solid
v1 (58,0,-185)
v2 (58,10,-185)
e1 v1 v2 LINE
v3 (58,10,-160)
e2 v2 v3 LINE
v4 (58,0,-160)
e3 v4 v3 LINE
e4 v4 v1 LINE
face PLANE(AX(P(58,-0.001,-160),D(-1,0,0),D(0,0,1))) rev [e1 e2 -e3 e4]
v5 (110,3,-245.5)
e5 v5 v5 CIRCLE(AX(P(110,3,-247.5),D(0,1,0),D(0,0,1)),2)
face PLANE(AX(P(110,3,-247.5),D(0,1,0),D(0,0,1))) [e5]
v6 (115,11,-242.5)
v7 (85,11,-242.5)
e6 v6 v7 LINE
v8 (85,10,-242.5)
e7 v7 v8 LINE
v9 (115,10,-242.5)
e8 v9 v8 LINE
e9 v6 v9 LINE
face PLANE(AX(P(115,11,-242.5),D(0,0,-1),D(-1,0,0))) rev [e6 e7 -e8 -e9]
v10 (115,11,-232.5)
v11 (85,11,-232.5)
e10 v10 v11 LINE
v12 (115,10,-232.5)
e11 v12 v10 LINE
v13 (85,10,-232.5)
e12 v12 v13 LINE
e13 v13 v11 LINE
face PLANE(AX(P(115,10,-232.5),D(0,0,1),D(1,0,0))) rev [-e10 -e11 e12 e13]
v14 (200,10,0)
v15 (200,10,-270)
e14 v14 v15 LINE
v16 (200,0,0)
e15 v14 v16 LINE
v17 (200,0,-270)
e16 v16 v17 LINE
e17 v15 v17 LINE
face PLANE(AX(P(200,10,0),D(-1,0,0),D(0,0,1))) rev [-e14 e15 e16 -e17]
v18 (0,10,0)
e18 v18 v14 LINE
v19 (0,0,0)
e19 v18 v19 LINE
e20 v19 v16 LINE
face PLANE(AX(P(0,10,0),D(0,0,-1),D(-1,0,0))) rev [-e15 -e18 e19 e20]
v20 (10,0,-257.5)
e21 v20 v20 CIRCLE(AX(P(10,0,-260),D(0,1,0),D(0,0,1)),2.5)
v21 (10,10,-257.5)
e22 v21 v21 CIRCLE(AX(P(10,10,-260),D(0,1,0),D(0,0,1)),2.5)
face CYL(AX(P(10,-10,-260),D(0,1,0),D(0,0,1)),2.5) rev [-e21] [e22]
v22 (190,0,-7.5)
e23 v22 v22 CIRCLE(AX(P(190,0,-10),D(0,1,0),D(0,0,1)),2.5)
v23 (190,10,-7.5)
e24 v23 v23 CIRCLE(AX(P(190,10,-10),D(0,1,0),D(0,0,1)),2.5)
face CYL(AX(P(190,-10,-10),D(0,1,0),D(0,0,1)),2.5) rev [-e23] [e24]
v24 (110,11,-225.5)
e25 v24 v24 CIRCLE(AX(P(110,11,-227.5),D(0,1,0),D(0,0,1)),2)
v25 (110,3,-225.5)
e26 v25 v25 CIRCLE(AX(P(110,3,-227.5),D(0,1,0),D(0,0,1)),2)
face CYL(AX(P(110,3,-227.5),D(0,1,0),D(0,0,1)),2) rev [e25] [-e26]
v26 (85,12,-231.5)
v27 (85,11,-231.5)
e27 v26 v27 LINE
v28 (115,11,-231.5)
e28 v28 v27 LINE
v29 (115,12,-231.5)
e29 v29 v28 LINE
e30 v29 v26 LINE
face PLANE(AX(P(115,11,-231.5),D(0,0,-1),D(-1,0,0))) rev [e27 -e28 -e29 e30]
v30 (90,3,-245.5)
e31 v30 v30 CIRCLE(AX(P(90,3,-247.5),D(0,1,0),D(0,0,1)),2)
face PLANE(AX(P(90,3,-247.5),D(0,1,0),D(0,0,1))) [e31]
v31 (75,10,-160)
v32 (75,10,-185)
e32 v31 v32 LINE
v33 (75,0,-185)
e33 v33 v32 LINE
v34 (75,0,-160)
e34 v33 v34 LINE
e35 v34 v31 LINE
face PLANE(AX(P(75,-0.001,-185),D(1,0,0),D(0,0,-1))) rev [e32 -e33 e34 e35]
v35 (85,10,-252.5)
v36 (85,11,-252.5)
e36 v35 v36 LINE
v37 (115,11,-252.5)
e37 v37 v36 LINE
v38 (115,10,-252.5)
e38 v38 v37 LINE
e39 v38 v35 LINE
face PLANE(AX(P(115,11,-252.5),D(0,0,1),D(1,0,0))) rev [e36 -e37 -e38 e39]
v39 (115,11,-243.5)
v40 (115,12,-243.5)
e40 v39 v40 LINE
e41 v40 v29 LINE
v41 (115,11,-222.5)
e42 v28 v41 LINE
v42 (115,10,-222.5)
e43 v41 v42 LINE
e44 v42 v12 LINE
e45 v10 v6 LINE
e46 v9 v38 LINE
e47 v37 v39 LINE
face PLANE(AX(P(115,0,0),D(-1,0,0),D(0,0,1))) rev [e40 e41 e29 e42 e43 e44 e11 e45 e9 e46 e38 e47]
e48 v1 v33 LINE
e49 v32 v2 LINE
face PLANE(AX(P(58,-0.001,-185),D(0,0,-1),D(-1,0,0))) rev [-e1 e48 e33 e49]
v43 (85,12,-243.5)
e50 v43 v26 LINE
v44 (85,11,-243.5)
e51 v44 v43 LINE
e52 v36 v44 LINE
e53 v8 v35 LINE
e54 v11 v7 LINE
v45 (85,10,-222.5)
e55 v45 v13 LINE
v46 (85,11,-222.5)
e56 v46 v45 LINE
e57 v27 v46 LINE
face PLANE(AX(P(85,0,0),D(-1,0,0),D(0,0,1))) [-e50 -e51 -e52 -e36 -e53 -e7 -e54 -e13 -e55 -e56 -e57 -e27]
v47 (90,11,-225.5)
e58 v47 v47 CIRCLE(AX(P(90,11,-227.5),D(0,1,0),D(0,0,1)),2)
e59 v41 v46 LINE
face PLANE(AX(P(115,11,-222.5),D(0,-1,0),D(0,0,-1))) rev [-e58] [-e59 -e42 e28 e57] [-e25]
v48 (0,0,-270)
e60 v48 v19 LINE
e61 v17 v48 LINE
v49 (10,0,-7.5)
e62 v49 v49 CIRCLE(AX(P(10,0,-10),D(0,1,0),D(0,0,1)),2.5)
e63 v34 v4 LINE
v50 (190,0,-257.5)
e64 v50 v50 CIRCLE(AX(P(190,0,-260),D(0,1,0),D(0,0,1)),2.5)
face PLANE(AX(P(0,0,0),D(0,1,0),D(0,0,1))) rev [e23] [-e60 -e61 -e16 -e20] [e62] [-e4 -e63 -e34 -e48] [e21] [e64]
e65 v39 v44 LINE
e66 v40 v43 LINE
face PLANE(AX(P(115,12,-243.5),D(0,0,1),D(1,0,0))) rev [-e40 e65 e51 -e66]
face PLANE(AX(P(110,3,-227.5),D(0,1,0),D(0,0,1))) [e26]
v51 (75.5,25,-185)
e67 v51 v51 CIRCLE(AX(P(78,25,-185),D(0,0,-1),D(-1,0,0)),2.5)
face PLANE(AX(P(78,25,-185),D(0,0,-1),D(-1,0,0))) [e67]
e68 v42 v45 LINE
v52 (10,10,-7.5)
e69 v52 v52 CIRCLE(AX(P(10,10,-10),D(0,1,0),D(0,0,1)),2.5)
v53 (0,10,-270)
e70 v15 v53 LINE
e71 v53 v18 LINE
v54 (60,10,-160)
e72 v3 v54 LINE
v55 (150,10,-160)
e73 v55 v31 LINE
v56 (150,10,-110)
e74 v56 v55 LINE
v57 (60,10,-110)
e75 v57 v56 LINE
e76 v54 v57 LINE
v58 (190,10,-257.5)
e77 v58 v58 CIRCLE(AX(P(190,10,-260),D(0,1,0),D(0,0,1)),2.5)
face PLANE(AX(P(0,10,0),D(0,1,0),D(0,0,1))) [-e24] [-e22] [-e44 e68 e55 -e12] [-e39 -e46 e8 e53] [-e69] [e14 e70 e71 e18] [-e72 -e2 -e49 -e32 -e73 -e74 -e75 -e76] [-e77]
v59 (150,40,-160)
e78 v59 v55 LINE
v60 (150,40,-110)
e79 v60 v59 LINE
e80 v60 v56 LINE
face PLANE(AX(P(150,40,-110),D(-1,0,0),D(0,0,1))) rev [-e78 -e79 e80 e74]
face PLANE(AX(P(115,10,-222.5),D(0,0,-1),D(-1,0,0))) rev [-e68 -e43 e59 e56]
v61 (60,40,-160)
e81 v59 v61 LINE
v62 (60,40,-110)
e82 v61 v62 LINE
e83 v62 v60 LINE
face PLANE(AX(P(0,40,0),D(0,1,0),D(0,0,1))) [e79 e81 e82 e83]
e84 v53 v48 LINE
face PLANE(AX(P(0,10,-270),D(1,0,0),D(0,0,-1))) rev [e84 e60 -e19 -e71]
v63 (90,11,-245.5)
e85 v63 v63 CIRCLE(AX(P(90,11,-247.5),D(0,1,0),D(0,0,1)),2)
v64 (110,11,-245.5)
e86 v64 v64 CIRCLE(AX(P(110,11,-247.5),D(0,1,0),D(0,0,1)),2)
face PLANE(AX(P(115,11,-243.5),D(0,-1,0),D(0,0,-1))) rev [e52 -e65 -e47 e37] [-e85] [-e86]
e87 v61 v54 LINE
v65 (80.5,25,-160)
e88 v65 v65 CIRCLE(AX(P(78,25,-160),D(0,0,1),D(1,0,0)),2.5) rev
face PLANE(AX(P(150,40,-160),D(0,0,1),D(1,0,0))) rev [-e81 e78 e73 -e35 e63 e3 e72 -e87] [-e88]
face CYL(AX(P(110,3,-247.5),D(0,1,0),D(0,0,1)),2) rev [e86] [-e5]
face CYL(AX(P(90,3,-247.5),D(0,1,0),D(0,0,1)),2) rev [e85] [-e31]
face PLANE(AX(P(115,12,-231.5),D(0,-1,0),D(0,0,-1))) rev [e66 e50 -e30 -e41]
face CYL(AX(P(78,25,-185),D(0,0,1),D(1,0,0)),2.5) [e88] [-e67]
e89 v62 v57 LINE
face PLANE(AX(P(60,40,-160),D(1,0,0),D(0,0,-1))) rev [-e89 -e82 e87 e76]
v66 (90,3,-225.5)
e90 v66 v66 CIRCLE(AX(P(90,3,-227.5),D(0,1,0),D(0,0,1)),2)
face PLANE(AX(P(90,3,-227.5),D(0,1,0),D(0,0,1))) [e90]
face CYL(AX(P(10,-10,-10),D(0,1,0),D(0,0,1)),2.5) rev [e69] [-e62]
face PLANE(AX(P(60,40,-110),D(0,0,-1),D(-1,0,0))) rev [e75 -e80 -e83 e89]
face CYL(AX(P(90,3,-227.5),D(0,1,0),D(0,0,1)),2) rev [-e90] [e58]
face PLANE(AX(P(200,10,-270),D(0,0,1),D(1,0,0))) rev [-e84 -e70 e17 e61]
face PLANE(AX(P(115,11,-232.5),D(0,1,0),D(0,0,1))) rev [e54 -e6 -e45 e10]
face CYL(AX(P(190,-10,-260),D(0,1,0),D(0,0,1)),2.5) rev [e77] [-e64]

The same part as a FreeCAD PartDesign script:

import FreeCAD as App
import Part
import Sketcher


def add_polygon(sketch, points):
    """Adds a closed chain of lines whose ends are joined by coincident constraints."""
    first, n = sketch.GeometryCount, len(points)
    for a, b in zip(points, points[1:] + points[:1]):
        sketch.addGeometry(Part.LineSegment(App.Vector(*a, 0), App.Vector(*b, 0)), False)
    for i in range(n):
        sketch.addConstraint(Sketcher.Constraint("Coincident", first + i, 2, first + (i + 1) % n, 1))

doc = App.newDocument("Part")
body = doc.addObject("PartDesign::Body", "Body")

sketch1 = body.newObject("Sketcher::SketchObject", "Sketch")
sketch1.AttachmentSupport = (doc.getObject("XZ_Plane"), [""])
sketch1.MapMode = "FlatFace"
add_polygon(sketch1, [(0, -270), (0, 0), (200, 0), (200, -270)])
sketch1.addConstraint(Sketcher.Constraint("Vertical", 0))
sketch1.addConstraint(Sketcher.Constraint("Horizontal", 1))
sketch1.addConstraint(Sketcher.Constraint("Vertical", 2))
sketch1.addConstraint(Sketcher.Constraint("Horizontal", 3))
sketch1.addConstraint(Sketcher.Constraint("Coincident", 0, 2, -1, 1))
sketch1.addConstraint(Sketcher.Constraint("DistanceX", 1, 1, 1, 2, 200.0))
sketch1.addConstraint(Sketcher.Constraint("DistanceY", 0, 1, 0, 2, 270.0))
pad1 = body.newObject("PartDesign::Pad", "Pad")
pad1.Profile = sketch1
pad1.Length = 10
pad1.Reversed = True

sketch2 = body.newObject("Sketcher::SketchObject", "Sketch001")
sketch2.AttachmentSupport = (doc.getObject("XZ_Plane"), [""])
sketch2.MapMode = "FlatFace"
sketch2.AttachmentOffset = App.Placement(App.Vector(0, 0, -10), App.Rotation())
sketch2.addGeometry(Part.Circle(App.Vector(10, -260, 0), App.Vector(0, 0, 1), 2.5), False)
sketch2.addGeometry(Part.Circle(App.Vector(10, -10, 0), App.Vector(0, 0, 1), 2.5), False)
sketch2.addGeometry(Part.Circle(App.Vector(190, -10, 0), App.Vector(0, 0, 1), 2.5), False)
sketch2.addGeometry(Part.Circle(App.Vector(190, -260, 0), App.Vector(0, 0, 1), 2.5), False)
sketch2.addConstraint(Sketcher.Constraint("Equal", 0, 1))
sketch2.addConstraint(Sketcher.Constraint("Equal", 1, 2))
sketch2.addConstraint(Sketcher.Constraint("Equal", 2, 3))
sketch2.addConstraint(Sketcher.Constraint("Horizontal", 1, 3, 2, 3))
sketch2.addConstraint(Sketcher.Constraint("Horizontal", 0, 3, 3, 3))
sketch2.addConstraint(Sketcher.Constraint("Vertical", 0, 3, 1, 3))
sketch2.addConstraint(Sketcher.Constraint("Vertical", 2, 3, 3, 3))
sketch2.addConstraint(Sketcher.Constraint("Diameter", 0, 5.0))
sketch2.addConstraint(Sketcher.Constraint("DistanceX", -1, 1, 0, 3, 10.0))
sketch2.addConstraint(Sketcher.Constraint("DistanceY", 0, 3, -1, 1, 260.0))
sketch2.addConstraint(Sketcher.Constraint("DistanceY", 1, 3, -1, 1, 10.0))
sketch2.addConstraint(Sketcher.Constraint("DistanceX", -1, 1, 2, 3, 190.0))
pocket1 = body.newObject("PartDesign::Pocket", "Pocket")
pocket1.Profile = sketch2
pocket1.Length = 20
pocket1.Reversed = True

sketch3 = body.newObject("Sketcher::SketchObject", "Sketch002")
sketch3.AttachmentSupport = (doc.getObject("XZ_Plane"), [""])
sketch3.MapMode = "FlatFace"
sketch3.AttachmentOffset = App.Placement(App.Vector(0, 0, -10), App.Rotation())
add_polygon(sketch3, [(60, -160), (60, -110), (150, -110), (150, -160)])
sketch3.addConstraint(Sketcher.Constraint("Vertical", 0))
sketch3.addConstraint(Sketcher.Constraint("Horizontal", 1))
sketch3.addConstraint(Sketcher.Constraint("Vertical", 2))
sketch3.addConstraint(Sketcher.Constraint("Horizontal", 3))
sketch3.addConstraint(Sketcher.Constraint("DistanceX", 1, 1, 1, 2, 90.0))
sketch3.addConstraint(Sketcher.Constraint("DistanceY", 0, 1, 0, 2, 50.0))
sketch3.addConstraint(Sketcher.Constraint("DistanceX", -1, 1, 0, 2, 60.0))
sketch3.addConstraint(Sketcher.Constraint("DistanceY", 0, 2, -1, 1, 110.0))
pad2 = body.newObject("PartDesign::Pad", "Pad001")
pad2.Profile = sketch3
pad2.Length = 30
pad2.Reversed = True

sketch4 = body.newObject("Sketcher::SketchObject", "Sketch003")
sketch4.AttachmentSupport = (doc.getObject("XZ_Plane"), [""])
sketch4.MapMode = "FlatFace"
sketch4.AttachmentOffset = App.Placement(App.Vector(0, 0, -10), App.Rotation())
add_polygon(sketch4, [(58, -185), (58, -160), (75, -160), (75, -185)])
sketch4.addConstraint(Sketcher.Constraint("Vertical", 0))
sketch4.addConstraint(Sketcher.Constraint("Horizontal", 1))
sketch4.addConstraint(Sketcher.Constraint("Vertical", 2))
sketch4.addConstraint(Sketcher.Constraint("Horizontal", 3))
sketch4.addConstraint(Sketcher.Constraint("DistanceX", 1, 1, 1, 2, 17.0))
sketch4.addConstraint(Sketcher.Constraint("DistanceY", 0, 1, 0, 2, 25.0))
sketch4.addConstraint(Sketcher.Constraint("DistanceX", -1, 1, 0, 2, 58.0))
sketch4.addConstraint(Sketcher.Constraint("DistanceY", 0, 2, -1, 1, 160.0))
pocket2 = body.newObject("PartDesign::Pocket", "Pocket001")
pocket2.Profile = sketch4
pocket2.Type = "UpToFirst"
pocket2.Reversed = True

sketch5 = body.newObject("Sketcher::SketchObject", "Sketch004")
sketch5.AttachmentSupport = (doc.getObject("YZ_Plane"), [""])
sketch5.MapMode = "FlatFace"
sketch5.AttachmentOffset = App.Placement(App.Vector(0, 0, 100), App.Rotation())
add_polygon(sketch5, [(10, -232.5), (11, -232.5), (11, -242.5), (10, -242.5), (10, -252.5), (11, -252.5), (11, -243.5), (12, -243.5), (12, -231.5), (11, -231.5), (11, -222.5), (10, -222.5)])
sketch5.addConstraint(Sketcher.Constraint("Horizontal", 0))
sketch5.addConstraint(Sketcher.Constraint("Vertical", 1))
sketch5.addConstraint(Sketcher.Constraint("Horizontal", 2))
sketch5.addConstraint(Sketcher.Constraint("Vertical", 3))
sketch5.addConstraint(Sketcher.Constraint("Horizontal", 4))
sketch5.addConstraint(Sketcher.Constraint("Vertical", 5))
sketch5.addConstraint(Sketcher.Constraint("Horizontal", 6))
sketch5.addConstraint(Sketcher.Constraint("Vertical", 7))
sketch5.addConstraint(Sketcher.Constraint("Horizontal", 8))
sketch5.addConstraint(Sketcher.Constraint("Vertical", 9))
sketch5.addConstraint(Sketcher.Constraint("Horizontal", 10))
sketch5.addConstraint(Sketcher.Constraint("Vertical", 11))
sketch5.addConstraint(Sketcher.Constraint("Vertical", 1, 2, 4, 2))
sketch5.addConstraint(Sketcher.Constraint("Vertical", 5, 2, 8, 2))
sketch5.addConstraint(Sketcher.Constraint("Vertical", 3, 2, 10, 2))
sketch5.addConstraint(Sketcher.Constraint("Equal", 4, 6))
sketch5.addConstraint(Sketcher.Constraint("Equal", 1, 3))
sketch5.addConstraint(Sketcher.Constraint("Equal", 5, 9))
sketch5.addConstraint(Sketcher.Constraint("Equal", 3, 11))
sketch5.addConstraint(Sketcher.Constraint("DistanceX", 0, 1, 0, 2, 1.0))
sketch5.addConstraint(Sketcher.Constraint("DistanceY", 1, 2, 1, 1, 10.0))
sketch5.addConstraint(Sketcher.Constraint("DistanceY", 5, 1, 5, 2, 9.0))
sketch5.addConstraint(Sketcher.Constraint("DistanceX", -1, 1, 0, 2, 11.0))
sketch5.addConstraint(Sketcher.Constraint("DistanceY", 0, 2, -1, 1, 232.5))
pad3 = body.newObject("PartDesign::Pad", "Pad002")
pad3.Profile = sketch5
pad3.Length = 30
pad3.Midplane = True

sketch6 = body.newObject("Sketcher::SketchObject", "Sketch005")
sketch6.AttachmentSupport = (doc.getObject("XZ_Plane"), [""])
sketch6.MapMode = "FlatFace"
sketch6.AttachmentOffset = App.Placement(App.Vector(0, 0, -11), App.Rotation())
sketch6.addGeometry(Part.Circle(App.Vector(90, -227.5, 0), App.Vector(0, 0, 1), 2), False)
sketch6.addGeometry(Part.Circle(App.Vector(110, -227.5, 0), App.Vector(0, 0, 1), 2), False)
sketch6.addGeometry(Part.Circle(App.Vector(90, -247.5, 0), App.Vector(0, 0, 1), 2), False)
sketch6.addGeometry(Part.Circle(App.Vector(110, -247.5, 0), App.Vector(0, 0, 1), 2), False)
sketch6.addConstraint(Sketcher.Constraint("Equal", 0, 1))
sketch6.addConstraint(Sketcher.Constraint("Equal", 1, 2))
sketch6.addConstraint(Sketcher.Constraint("Equal", 2, 3))
sketch6.addConstraint(Sketcher.Constraint("Horizontal", 0, 3, 1, 3))
sketch6.addConstraint(Sketcher.Constraint("Horizontal", 2, 3, 3, 3))
sketch6.addConstraint(Sketcher.Constraint("Vertical", 0, 3, 2, 3))
sketch6.addConstraint(Sketcher.Constraint("Vertical", 1, 3, 3, 3))
sketch6.addConstraint(Sketcher.Constraint("Diameter", 0, 4.0))
sketch6.addConstraint(Sketcher.Constraint("DistanceX", -1, 1, 0, 3, 90.0))
sketch6.addConstraint(Sketcher.Constraint("DistanceX", -1, 1, 1, 3, 110.0))
sketch6.addConstraint(Sketcher.Constraint("DistanceY", 2, 3, 0, 3, 20.0))
sketch6.addConstraint(Sketcher.Constraint("DistanceY", 0, 3, -1, 1, 227.5))
pocket3 = body.newObject("PartDesign::Pocket", "Pocket002")
pocket3.Profile = sketch6
pocket3.Length = 8
pocket3.Reversed = True

sketch7 = body.newObject("Sketcher::SketchObject", "Sketch006")
sketch7.AttachmentSupport = (doc.getObject("XY_Plane"), [""])
sketch7.MapMode = "FlatFace"
sketch7.AttachmentOffset = App.Placement(App.Vector(0, 0, -160), App.Rotation())
sketch7.addGeometry(Part.Circle(App.Vector(78, 25, 0), App.Vector(0, 0, 1), 2.5), False)
sketch7.addConstraint(Sketcher.Constraint("Diameter", 0, 5.0))
sketch7.addConstraint(Sketcher.Constraint("DistanceX", -1, 1, 0, 3, 78.0))
sketch7.addConstraint(Sketcher.Constraint("DistanceY", -1, 1, 0, 3, 25.0))
pad4 = body.newObject("PartDesign::Pad", "Pad003")
pad4.Profile = sketch7
pad4.Length = 25
pad4.Reversed = True

doc.recompute()
